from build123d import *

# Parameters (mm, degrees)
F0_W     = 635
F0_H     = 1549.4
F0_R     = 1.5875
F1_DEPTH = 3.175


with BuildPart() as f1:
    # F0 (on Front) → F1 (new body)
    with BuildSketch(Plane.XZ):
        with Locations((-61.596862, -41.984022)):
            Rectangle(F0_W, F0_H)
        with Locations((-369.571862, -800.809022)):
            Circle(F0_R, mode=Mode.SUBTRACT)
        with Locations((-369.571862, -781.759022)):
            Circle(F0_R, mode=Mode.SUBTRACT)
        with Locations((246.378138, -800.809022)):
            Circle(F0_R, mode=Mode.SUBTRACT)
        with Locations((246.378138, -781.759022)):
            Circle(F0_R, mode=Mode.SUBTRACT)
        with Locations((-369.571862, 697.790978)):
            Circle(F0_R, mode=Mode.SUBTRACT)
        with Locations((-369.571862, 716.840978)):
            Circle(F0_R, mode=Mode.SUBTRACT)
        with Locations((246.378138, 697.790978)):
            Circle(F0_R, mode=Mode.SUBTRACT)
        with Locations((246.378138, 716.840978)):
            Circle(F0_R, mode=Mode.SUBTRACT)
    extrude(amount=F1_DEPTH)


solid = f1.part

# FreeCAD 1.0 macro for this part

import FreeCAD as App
import Part
import Sketcher
Q = App.Units.Quantity

doc = App.newDocument("Part")
params = doc.addObject("Spreadsheet::Sheet", "Params")
for row, (alias, value) in enumerate([
    ("sketch1_width", "25 in"),
    ("sketch1_height", "61 in"),
    ("sketch1_diameter", "0.125 in"),
    ("pad1_length", "0.125 in"),
], start=1):
    params.set(f"A{row}", alias)
    params.set(f"B{row}", "=" + value)
    params.setAlias(f"B{row}", alias)

body = doc.addObject("PartDesign::Body", "Body")

# Sketch on XZ plane
sketch1 = body.newObject("Sketcher::SketchObject", "Sketch")
sketch1.AttachmentSupport = (doc.getObject("XZ_Plane"), [""])
sketch1.MapMode = "FlatFace"
sketch1.addGeometry(Part.LineSegment(App.Vector(-379.1, 732.7, 0), App.Vector(-379.1, -816.7, 0)), False)
sketch1.addGeometry(Part.LineSegment(App.Vector(-379.1, -816.7, 0), App.Vector(255.9, -816.7, 0)), False)
sketch1.addGeometry(Part.LineSegment(App.Vector(255.9, -816.7, 0), App.Vector(255.9, 732.7, 0)), False)
sketch1.addGeometry(Part.LineSegment(App.Vector(255.9, 732.7, 0), App.Vector(-379.1, 732.7, 0)), False)
sketch1.addGeometry(Part.Circle(App.Vector(-369.6, -800.8, 0), App.Vector(0, 0, 1), 1.6), False)
sketch1.addGeometry(Part.Circle(App.Vector(-369.6, -781.8, 0), App.Vector(0, 0, 1), 1.6), False)
sketch1.addGeometry(Part.Circle(App.Vector(246.4, -800.8, 0), App.Vector(0, 0, 1), 1.6), False)
sketch1.addGeometry(Part.Circle(App.Vector(246.4, -781.8, 0), App.Vector(0, 0, 1), 1.6), False)
sketch1.addGeometry(Part.Circle(App.Vector(-369.6, 697.8, 0), App.Vector(0, 0, 1), 1.6), False)
sketch1.addGeometry(Part.Circle(App.Vector(-369.6, 716.8, 0), App.Vector(0, 0, 1), 1.6), False)
sketch1.addGeometry(Part.Circle(App.Vector(246.4, 697.8, 0), App.Vector(0, 0, 1), 1.6), False)
sketch1.addGeometry(Part.Circle(App.Vector(246.4, 716.8, 0), App.Vector(0, 0, 1), 1.6), False)
sketch1.addConstraint(Sketcher.Constraint("Coincident", 0, 2, 1, 1))
sketch1.addConstraint(Sketcher.Constraint("Coincident", 1, 2, 2, 1))
sketch1.addConstraint(Sketcher.Constraint("Coincident", 2, 2, 3, 1))
sketch1.addConstraint(Sketcher.Constraint("Coincident", 3, 2, 0, 1))
sketch1.addConstraint(Sketcher.Constraint("Vertical", 0))
sketch1.addConstraint(Sketcher.Constraint("Horizontal", 1))
sketch1.addConstraint(Sketcher.Constraint("Vertical", 2))
sketch1.addConstraint(Sketcher.Constraint("Horizontal", 3))
sketch1.addConstraint(Sketcher.Constraint("Equal", 4, 5))
sketch1.addConstraint(Sketcher.Constraint("Equal", 5, 6))
sketch1.addConstraint(Sketcher.Constraint("Equal", 6, 7))
sketch1.addConstraint(Sketcher.Constraint("Equal", 7, 8))
sketch1.addConstraint(Sketcher.Constraint("Equal", 8, 9))
sketch1.addConstraint(Sketcher.Constraint("Equal", 9, 10))
sketch1.addConstraint(Sketcher.Constraint("Equal", 10, 11))
sketch1.addConstraint(Sketcher.Constraint("Horizontal", 4, 3, 6, 3))
sketch1.addConstraint(Sketcher.Constraint("Horizontal", 5, 3, 7, 3))
sketch1.addConstraint(Sketcher.Constraint("Horizontal", 8, 3, 10, 3))
sketch1.addConstraint(Sketcher.Constraint("Horizontal", 9, 3, 11, 3))
sketch1.addConstraint(Sketcher.Constraint("Vertical", 4, 3, 5, 3))
sketch1.addConstraint(Sketcher.Constraint("Vertical", 6, 3, 7, 3))
sketch1.addConstraint(Sketcher.Constraint("Vertical", 5, 3, 8, 3))
sketch1.addConstraint(Sketcher.Constraint("Vertical", 8, 3, 9, 3))
sketch1.addConstraint(Sketcher.Constraint("Vertical", 7, 3, 10, 3))
sketch1.addConstraint(Sketcher.Constraint("Vertical", 10, 3, 11, 3))
sketch1.addConstraint(Sketcher.Constraint("DistanceX", 1, 1, 1, 2, Q("25 in")))
sketch1.addConstraint(Sketcher.Constraint("DistanceY", 0, 2, 0, 1, Q("61 in")))
sketch1.addConstraint(Sketcher.Constraint("Diameter", 4, Q("0.125 in")))
sketch1.addConstraint(Sketcher.Constraint("DistanceY", 4, 3, 8, 3, Q("59 in")))
sketch1.addConstraint(Sketcher.Constraint("DistanceY", 5, 3, 9, 3, Q("59 in")))
sketch1.addConstraint(Sketcher.Constraint("DistanceY", 4, 3, 5, 3, Q("0.75 in")))
sketch1.addConstraint(Sketcher.Constraint("DistanceX", 4, 3, 6, 3, Q("24.25 in")))
sketch1.addConstraint(Sketcher.Constraint("DistanceX", 0, 2, 4, 3, Q("0.375 in")))
sketch1.addConstraint(Sketcher.Constraint("DistanceY", 0, 2, 4, 3, Q("0.625 in")))
sketch1.addConstraint(Sketcher.Constraint("DistanceX", 4, 3, -1, 1, Q("369.571862 mm")))
sketch1.addConstraint(Sketcher.Constraint("DistanceY", 4, 3, -1, 1, Q("800.809022 mm")))
sketch1.setExpression("Constraints[25]", "Params.sketch1_width")
sketch1.setExpression("Constraints[26]", "Params.sketch1_height")
sketch1.setExpression("Constraints[27]", "Params.sketch1_diameter")
pad1 = body.newObject("PartDesign::Pad", "Pad")
pad1.Profile = sketch1
pad1.setExpression("Length", "Params.pad1_length")

doc.recompute()
